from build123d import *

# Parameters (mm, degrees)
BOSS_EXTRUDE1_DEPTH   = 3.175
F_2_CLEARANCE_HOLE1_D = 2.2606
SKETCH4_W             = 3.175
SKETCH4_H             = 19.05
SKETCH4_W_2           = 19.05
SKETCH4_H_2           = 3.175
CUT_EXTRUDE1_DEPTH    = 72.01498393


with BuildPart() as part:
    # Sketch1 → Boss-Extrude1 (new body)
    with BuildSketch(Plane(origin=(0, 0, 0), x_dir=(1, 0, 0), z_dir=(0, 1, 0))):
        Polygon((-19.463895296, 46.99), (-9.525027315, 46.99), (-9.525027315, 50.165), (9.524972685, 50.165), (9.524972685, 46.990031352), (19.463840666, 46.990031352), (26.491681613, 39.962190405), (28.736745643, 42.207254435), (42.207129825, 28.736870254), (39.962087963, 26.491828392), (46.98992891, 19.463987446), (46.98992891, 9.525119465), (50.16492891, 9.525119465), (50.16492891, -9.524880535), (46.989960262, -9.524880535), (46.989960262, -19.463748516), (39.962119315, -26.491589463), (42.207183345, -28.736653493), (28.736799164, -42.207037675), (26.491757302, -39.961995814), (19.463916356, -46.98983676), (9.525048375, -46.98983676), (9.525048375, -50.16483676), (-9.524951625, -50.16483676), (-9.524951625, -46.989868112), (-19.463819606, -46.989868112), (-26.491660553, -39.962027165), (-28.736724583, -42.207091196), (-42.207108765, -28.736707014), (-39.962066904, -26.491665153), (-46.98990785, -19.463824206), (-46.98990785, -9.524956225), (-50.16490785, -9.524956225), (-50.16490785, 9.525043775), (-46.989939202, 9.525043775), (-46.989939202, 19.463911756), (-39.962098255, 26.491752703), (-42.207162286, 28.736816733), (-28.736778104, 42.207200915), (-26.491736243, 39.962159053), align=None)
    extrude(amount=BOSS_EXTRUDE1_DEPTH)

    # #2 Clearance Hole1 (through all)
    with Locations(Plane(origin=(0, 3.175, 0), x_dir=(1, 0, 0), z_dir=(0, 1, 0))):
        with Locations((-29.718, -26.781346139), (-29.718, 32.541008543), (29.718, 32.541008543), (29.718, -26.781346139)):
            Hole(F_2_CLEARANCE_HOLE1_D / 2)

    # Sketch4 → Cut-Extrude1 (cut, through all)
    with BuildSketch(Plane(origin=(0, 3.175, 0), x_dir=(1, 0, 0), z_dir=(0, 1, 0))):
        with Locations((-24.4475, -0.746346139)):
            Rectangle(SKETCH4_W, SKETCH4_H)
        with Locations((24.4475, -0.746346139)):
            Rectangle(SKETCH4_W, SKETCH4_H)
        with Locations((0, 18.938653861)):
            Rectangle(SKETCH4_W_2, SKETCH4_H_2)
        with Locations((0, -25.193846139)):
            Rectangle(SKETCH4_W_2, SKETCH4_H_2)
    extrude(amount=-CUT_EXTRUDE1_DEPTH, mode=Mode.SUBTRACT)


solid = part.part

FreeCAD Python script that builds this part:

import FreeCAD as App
import Part
import Sketcher
from FreeCAD import Vector
Q = App.Units.Quantity

doc = App.newDocument("Part")
body = doc.addObject("PartDesign::Body", "Body")

# Sketch on XZ plane
sketch1 = body.newObject("Sketcher::SketchObject", "Sketch")
sketch1.AttachmentSupport = (doc.getObject("XZ_Plane"), [""])
sketch1.MapMode = "FlatFace"
sketch1.addGeometry([
    Part.LineSegment(Vector(-9.5, -47, 0), Vector(-19.5, -47, 0)),  # 0
    Part.LineSegment(Vector(-19.5, -47, 0), Vector(-26.5, -40, 0)),  # 1
    Part.LineSegment(Vector(-26.5, -40, 0), Vector(-28.7, -42.2, 0)),  # 2
    Part.LineSegment(Vector(-28.7, -42.2, 0), Vector(-42.2, -28.7, 0)),  # 3
    Part.LineSegment(Vector(-42.2, -28.7, 0), Vector(-40, -26.5, 0)),  # 4
    Part.LineSegment(Vector(-40, -26.5, 0), Vector(-47, -19.5, 0)),  # 5
    Part.LineSegment(Vector(-47, -19.5, 0), Vector(-47, -9.5, 0)),  # 6
    Part.LineSegment(Vector(-47, -9.5, 0), Vector(-50.2, -9.5, 0)),  # 7
    Part.LineSegment(Vector(-50.2, -9.5, 0), Vector(-50.2, 9.5, 0)),  # 8
    Part.LineSegment(Vector(-50.2, 9.5, 0), Vector(-47, 9.5, 0)),  # 9
    Part.LineSegment(Vector(-47, 9.5, 0), Vector(-47, 19.5, 0)),  # 10
    Part.LineSegment(Vector(-47, 19.5, 0), Vector(-40, 26.5, 0)),  # 11
    Part.LineSegment(Vector(-40, 26.5, 0), Vector(-42.2, 28.7, 0)),  # 12
    Part.LineSegment(Vector(-42.2, 28.7, 0), Vector(-28.7, 42.2, 0)),  # 13
    Part.LineSegment(Vector(-28.7, 42.2, 0), Vector(-26.5, 40, 0)),  # 14
    Part.LineSegment(Vector(-26.5, 40, 0), Vector(-19.5, 47, 0)),  # 15
    Part.LineSegment(Vector(-19.5, 47, 0), Vector(-9.5, 47, 0)),  # 16
    Part.LineSegment(Vector(-9.5, 47, 0), Vector(-9.5, 50.2, 0)),  # 17
    Part.LineSegment(Vector(-9.5, 50.2, 0), Vector(9.5, 50.2, 0)),  # 18
    Part.LineSegment(Vector(9.5, 50.2, 0), Vector(9.5, 47, 0)),  # 19
    Part.LineSegment(Vector(9.5, 47, 0), Vector(19.5, 47, 0)),  # 20
    Part.LineSegment(Vector(19.5, 47, 0), Vector(26.5, 40, 0)),  # 21
    Part.LineSegment(Vector(26.5, 40, 0), Vector(28.7, 42.2, 0)),  # 22
    Part.LineSegment(Vector(28.7, 42.2, 0), Vector(42.2, 28.7, 0)),  # 23
    Part.LineSegment(Vector(42.2, 28.7, 0), Vector(40, 26.5, 0)),  # 24
    Part.LineSegment(Vector(40, 26.5, 0), Vector(47, 19.5, 0)),  # 25
    Part.LineSegment(Vector(47, 19.5, 0), Vector(47, 9.5, 0)),  # 26
    Part.LineSegment(Vector(47, 9.5, 0), Vector(50.2, 9.5, 0)),  # 27
    Part.LineSegment(Vector(50.2, 9.5, 0), Vector(50.2, -9.5, 0)),  # 28
    Part.LineSegment(Vector(50.2, -9.5, 0), Vector(47, -9.5, 0)),  # 29
    Part.LineSegment(Vector(47, -9.5, 0), Vector(47, -19.5, 0)),  # 30
    Part.LineSegment(Vector(47, -19.5, 0), Vector(40, -26.5, 0)),  # 31
    Part.LineSegment(Vector(40, -26.5, 0), Vector(42.2, -28.7, 0)),  # 32
    Part.LineSegment(Vector(42.2, -28.7, 0), Vector(28.7, -42.2, 0)),  # 33
    Part.LineSegment(Vector(28.7, -42.2, 0), Vector(26.5, -40, 0)),  # 34
    Part.LineSegment(Vector(26.5, -40, 0), Vector(19.5, -47, 0)),  # 35
    Part.LineSegment(Vector(19.5, -47, 0), Vector(9.5, -47, 0)),  # 36
    Part.LineSegment(Vector(9.5, -47, 0), Vector(9.5, -50.2, 0)),  # 37
    Part.LineSegment(Vector(9.5, -50.2, 0), Vector(-9.5, -50.2, 0)),  # 38
    Part.LineSegment(Vector(-9.5, -50.2, 0), Vector(-9.5, -47, 0)),  # 39
], False)
sketch1.addConstraint([
    Sketcher.Constraint("Coincident", 0, 2, 1, 1),
    Sketcher.Constraint("Coincident", 1, 2, 2, 1),
    Sketcher.Constraint("Coincident", 2, 2, 3, 1),
    Sketcher.Constraint("Coincident", 3, 2, 4, 1),
    Sketcher.Constraint("Coincident", 4, 2, 5, 1),
    Sketcher.Constraint("Coincident", 5, 2, 6, 1),
    Sketcher.Constraint("Coincident", 6, 2, 7, 1),
    Sketcher.Constraint("Coincident", 7, 2, 8, 1),
    Sketcher.Constraint("Coincident", 8, 2, 9, 1),
    Sketcher.Constraint("Coincident", 9, 2, 10, 1),
    Sketcher.Constraint("Coincident", 10, 2, 11, 1),
    Sketcher.Constraint("Coincident", 11, 2, 12, 1),
    Sketcher.Constraint("Coincident", 12, 2, 13, 1),
    Sketcher.Constraint("Coincident", 13, 2, 14, 1),
    Sketcher.Constraint("Coincident", 14, 2, 15, 1),
    Sketcher.Constraint("Coincident", 15, 2, 16, 1),
    Sketcher.Constraint("Coincident", 16, 2, 17, 1),
    Sketcher.Constraint("Coincident", 17, 2, 18, 1),
    Sketcher.Constraint("Coincident", 18, 2, 19, 1),
    Sketcher.Constraint("Coincident", 19, 2, 20, 1),
    Sketcher.Constraint("Coincident", 20, 2, 21, 1),
    Sketcher.Constraint("Coincident", 21, 2, 22, 1),
    Sketcher.Constraint("Coincident", 22, 2, 23, 1),
    Sketcher.Constraint("Coincident", 23, 2, 24, 1),
    Sketcher.Constraint("Coincident", 24, 2, 25, 1),
    Sketcher.Constraint("Coincident", 25, 2, 26, 1),
    Sketcher.Constraint("Coincident", 26, 2, 27, 1),
    Sketcher.Constraint("Coincident", 27, 2, 28, 1),
    Sketcher.Constraint("Coincident", 28, 2, 29, 1),
    Sketcher.Constraint("Coincident", 29, 2, 30, 1),
    Sketcher.Constraint("Coincident", 30, 2, 31, 1),
    Sketcher.Constraint("Coincident", 31, 2, 32, 1),
    Sketcher.Constraint("Coincident", 32, 2, 33, 1),
    Sketcher.Constraint("Coincident", 33, 2, 34, 1),
    Sketcher.Constraint("Coincident", 34, 2, 35, 1),
    Sketcher.Constraint("Coincident", 35, 2, 36, 1),
    Sketcher.Constraint("Coincident", 36, 2, 37, 1),
    Sketcher.Constraint("Coincident", 37, 2, 38, 1),
    Sketcher.Constraint("Coincident", 38, 2, 39, 1),
    Sketcher.Constraint("Coincident", 39, 2, 0, 1),
    Sketcher.Constraint("Horizontal", 0),
    Sketcher.Constraint("Vertical", 6),
    Sketcher.Constraint("Horizontal", 7),
    Sketcher.Constraint("Vertical", 8),
    Sketcher.Constraint("Horizontal", 9),
    Sketcher.Constraint("Vertical", 10),
    Sketcher.Constraint("Horizontal", 16),
    Sketcher.Constraint("Vertical", 17),
    Sketcher.Constraint("Horizontal", 18),
    Sketcher.Constraint("Vertical", 19),
    Sketcher.Constraint("Horizontal", 20),
    Sketcher.Constraint("Vertical", 26),
    Sketcher.Constraint("Horizontal", 27),
    Sketcher.Constraint("Vertical", 28),
    Sketcher.Constraint("Horizontal", 29),
    Sketcher.Constraint("Vertical", 30),
    Sketcher.Constraint("Horizontal", 36),
    Sketcher.Constraint("Vertical", 37),
    Sketcher.Constraint("Horizontal", 38),
    Sketcher.Constraint("Vertical", 39),
    Sketcher.Constraint("Perpendicular", 1, 2),
    Sketcher.Constraint("Perpendicular", 2, 3),
    Sketcher.Constraint("Perpendicular", 3, 4),
    Sketcher.Constraint("Perpendicular", 4, 5),
    Sketcher.Constraint("Perpendicular", 5, 11),
    Sketcher.Constraint("Perpendicular", 11, 12),
    Sketcher.Constraint("Perpendicular", 12, 13),
    Sketcher.Constraint("Perpendicular", 13, 14),
    Sketcher.Constraint("Perpendicular", 14, 15),
    Sketcher.Constraint("Perpendicular", 15, 21),
    Sketcher.Constraint("Perpendicular", 21, 22),
    Sketcher.Constraint("Perpendicular", 22, 23),
    Sketcher.Constraint("Perpendicular", 23, 24),
    Sketcher.Constraint("Perpendicular", 24, 25),
    Sketcher.Constraint("Perpendicular", 25, 31),
    Sketcher.Constraint("Perpendicular", 31, 32),
    Sketcher.Constraint("Perpendicular", 32, 33),
    Sketcher.Constraint("Perpendicular", 33, 34),
    Sketcher.Constraint("Perpendicular", 34, 35),
    Sketcher.Constraint("Equal", 0, 16),
    Sketcher.Constraint("Equal", 16, 20),
    Sketcher.Constraint("Equal", 7, 27),
    Sketcher.Constraint("Equal", 9, 29),
    Sketcher.Constraint("Equal", 20, 36),
    Sketcher.Constraint("Equal", 18, 38),
    Sketcher.Constraint("Equal", 36, 6),
    Sketcher.Constraint("Equal", 38, 8),
    Sketcher.Constraint("Equal", 6, 10),
    Sketcher.Constraint("Equal", 27, 17),
    Sketcher.Constraint("Equal", 29, 19),
    Sketcher.Constraint("Equal", 10, 26),
    Sketcher.Constraint("Equal", 8, 28),
    Sketcher.Constraint("Equal", 26, 30),
    Sketcher.Constraint("Equal", 17, 37),
    Sketcher.Constraint("Equal", 19, 39),
    Sketcher.Constraint("Equal", 1, 5),
    Sketcher.Constraint("Equal", 5, 11),
    Sketcher.Constraint("Equal", 2, 12),
    Sketcher.Constraint("Equal", 3, 13),
    Sketcher.Constraint("Equal", 4, 14),
    Sketcher.Constraint("Equal", 11, 15),
    Sketcher.Constraint("Equal", 15, 21),
    Sketcher.Constraint("Equal", 12, 22),
    Sketcher.Constraint("Equal", 13, 23),
    Sketcher.Constraint("Equal", 14, 24),
    Sketcher.Constraint("Equal", 21, 25),
    Sketcher.Constraint("Equal", 25, 31),
    Sketcher.Constraint("Equal", 22, 32),
    Sketcher.Constraint("Equal", 23, 33),
    Sketcher.Constraint("Angle", 1, Q("135 deg")),
    Sketcher.Constraint("DistanceX", 18, 1, 18, 2, Q("0.75 in")),
    Sketcher.Constraint("Distance", 3, Q("0.75 in")),
    Sketcher.Constraint("DistanceX", 9, 1, 9, 2, Q("0.125 in")),
    Sketcher.Constraint("DistanceY", 0, 2, -1, 1, Q("1.85 in")),
    Sketcher.Constraint("Distance", 4, Q("0.125 in")),
    Sketcher.Constraint("DistanceX", -1, 1, 23, 2, Q("1.6617001 in")),
    Sketcher.Constraint("DistanceX", 7, 2, 7, 1, 3.174969),
    Sketcher.Constraint("DistanceY", 2, 2, -1, 1, 42.207201),
    Sketcher.Constraint("DistanceX", 4, 2, -1, 1, 39.962098),
    Sketcher.Constraint("Distance", 2, 3.174969),
])
pad1 = body.newObject("PartDesign::Pad", "Pad")
pad1.Profile = sketch1
pad1.Length = Q("0.125 in")
pad1.Reversed = True

# Sketch on XZ plane
sketch2 = body.newObject("Sketcher::SketchObject", "Sketch001")
sketch2.AttachmentSupport = (doc.getObject("XZ_Plane"), [""])
sketch2.MapMode = "FlatFace"
sketch2.AttachmentOffset = App.Placement(Vector(0, 0, -0.125 * 25.4), App.Rotation())
sketch2.addGeometry([
    Part.Circle(Vector(-29.7, 26.8, 0), Vector(0, 0, 1), 1.1),
    Part.Circle(Vector(-29.7, -32.5, 0), Vector(0, 0, 1), 1.1),
    Part.Circle(Vector(29.7, -32.5, 0), Vector(0, 0, 1), 1.1),
    Part.Circle(Vector(29.7, 26.8, 0), Vector(0, 0, 1), 1.1),
], False)
sketch2.addConstraint([
    Sketcher.Constraint("Equal", 0, 1),
    Sketcher.Constraint("Equal", 1, 2),
    Sketcher.Constraint("Equal", 2, 3),
    Sketcher.Constraint("Symmetric", 1, 3, 2, 3, -2),
    Sketcher.Constraint("Symmetric", 0, 3, 3, 3, -2),
    Sketcher.Constraint("Vertical", 0, 3, 1, 3),
    Sketcher.Constraint("Diameter", 0, Q("0.089 in")),
    Sketcher.Constraint("DistanceX", 0, 3, -1, 1, Q("1.17 in")),
    Sketcher.Constraint("DistanceY", 1, 3, -1, 1, 32.541009),
    Sketcher.Constraint("DistanceY", -1, 1, 0, 3, 26.781346),
])
doc.recompute()
hole = body.newObject("PartDesign::Hole", "Hole")
hole.Profile = sketch2
hole.ThreadType = "None"
hole.Diameter = Q("0.089 in")
hole.DepthType = "ThroughAll"
hole.Reversed = True

# Sketch on XZ plane
sketch3 = body.newObject("Sketcher::SketchObject", "Sketch002")
sketch3.AttachmentSupport = (doc.getObject("XZ_Plane"), [""])
sketch3.MapMode = "FlatFace"
sketch3.AttachmentOffset = App.Placement(Vector(0, 0, -0.125 * 25.4), App.Rotation())
sketch3.addGeometry([
    Part.LineSegment(Vector(-26, -8.8, 0), Vector(-26, 10.3, 0)),  # 0
    Part.LineSegment(Vector(-26, 10.3, 0), Vector(-22.9, 10.3, 0)),  # 1
    Part.LineSegment(Vector(-22.9, 10.3, 0), Vector(-22.9, -8.8, 0)),  # 2
    Part.LineSegment(Vector(-22.9, -8.8, 0), Vector(-26, -8.8, 0)),  # 3
    Part.LineSegment(Vector(22.9, -8.8, 0), Vector(22.9, 10.3, 0)),  # 4
    Part.LineSegment(Vector(22.9, 10.3, 0), Vector(26, 10.3, 0)),  # 5
    Part.LineSegment(Vector(26, 10.3, 0), Vector(26, -8.8, 0)),  # 6
    Part.LineSegment(Vector(26, -8.8, 0), Vector(22.9, -8.8, 0)),  # 7
    Part.LineSegment(Vector(-9.5, -20.5, 0), Vector(-9.5, -17.4, 0)),  # 8
    Part.LineSegment(Vector(-9.5, -17.4, 0), Vector(9.5, -17.4, 0)),  # 9
    Part.LineSegment(Vector(9.5, -17.4, 0), Vector(9.5, -20.5, 0)),  # 10
    Part.LineSegment(Vector(9.5, -20.5, 0), Vector(-9.5, -20.5, 0)),  # 11
    Part.LineSegment(Vector(-9.5, 23.6, 0), Vector(-9.5, 26.8, 0)),  # 12
    Part.LineSegment(Vector(-9.5, 26.8, 0), Vector(9.5, 26.8, 0)),  # 13
    Part.LineSegment(Vector(9.5, 26.8, 0), Vector(9.5, 23.6, 0)),  # 14
    Part.LineSegment(Vector(9.5, 23.6, 0), Vector(-9.5, 23.6, 0)),  # 15
], False)
sketch3.addConstraint([
    Sketcher.Constraint("Coincident", 0, 2, 1, 1),
    Sketcher.Constraint("Coincident", 1, 2, 2, 1),
    Sketcher.Constraint("Coincident", 2, 2, 3, 1),
    Sketcher.Constraint("Coincident", 3, 2, 0, 1),
    Sketcher.Constraint("Coincident", 4, 2, 5, 1),
    Sketcher.Constraint("Coincident", 5, 2, 6, 1),
    Sketcher.Constraint("Coincident", 6, 2, 7, 1),
    Sketcher.Constraint("Coincident", 7, 2, 4, 1),
    Sketcher.Constraint("Coincident", 8, 2, 9, 1),
    Sketcher.Constraint("Coincident", 9, 2, 10, 1),
    Sketcher.Constraint("Coincident", 10, 2, 11, 1),
    Sketcher.Constraint("Coincident", 11, 2, 8, 1),
    Sketcher.Constraint("Coincident", 12, 2, 13, 1),
    Sketcher.Constraint("Coincident", 13, 2, 14, 1),
    Sketcher.Constraint("Coincident", 14, 2, 15, 1),
    Sketcher.Constraint("Coincident", 15, 2, 12, 1),
    Sketcher.Constraint("Vertical", 0),
    Sketcher.Constraint("Horizontal", 1),
    Sketcher.Constraint("Vertical", 2),
    Sketcher.Constraint("Horizontal", 3),
    Sketcher.Constraint("Vertical", 4),
    Sketcher.Constraint("Horizontal", 5),
    Sketcher.Constraint("Vertical", 6),
    Sketcher.Constraint("Horizontal", 7),
    Sketcher.Constraint("Vertical", 8),
    Sketcher.Constraint("Horizontal", 9),
    Sketcher.Constraint("Vertical", 10),
    Sketcher.Constraint("Horizontal", 11),
    Sketcher.Constraint("Vertical", 12),
    Sketcher.Constraint("Horizontal", 13),
    Sketcher.Constraint("Vertical", 14),
    Sketcher.Constraint("Horizontal", 15),
    Sketcher.Constraint("Symmetric", 1, 2, 4, 2, -2),
    Sketcher.Constraint("Symmetric", 3, 2, 6, 2, -2),
    Sketcher.Constraint("Vertical", 11, 2, 12, 2),
    Sketcher.Constraint("Vertical", 10, 2, 13, 2),
    Sketcher.Constraint("Equal", 15, 0),
    Sketcher.Constraint("Equal", 7, 8),
    Sketcher.Constraint("Equal", 10, 12),
    Sketcher.Constraint("DistanceX", 9, 1, 9, 2, Q("0.75 in")),
    Sketcher.Constraint("DistanceX", 1, 2, -1, 1, Q("0.9 in")),
    Sketcher.Constraint("DistanceY", 2, 2, 12, 2, Q("1.4 in")),
    Sketcher.Constraint("DistanceX", 1, 1, 1, 2, Q("0.125 in")),
    Sketcher.Constraint("DistanceX", 3, 2, 8, 2, Q("0.65 in")),
    Sketcher.Constraint("DistanceY", 8, 2, 2, 2, Q("0.3375 in")),
    Sketcher.Constraint("DistanceY", -1, 1, 0, 2, 10.271346),
])
pocket1 = body.newObject("PartDesign::Pocket", "Pocket")
pocket1.Profile = sketch3
pocket1.Type = "ThroughAll"
pocket1.Reversed = True

doc.recompute()
